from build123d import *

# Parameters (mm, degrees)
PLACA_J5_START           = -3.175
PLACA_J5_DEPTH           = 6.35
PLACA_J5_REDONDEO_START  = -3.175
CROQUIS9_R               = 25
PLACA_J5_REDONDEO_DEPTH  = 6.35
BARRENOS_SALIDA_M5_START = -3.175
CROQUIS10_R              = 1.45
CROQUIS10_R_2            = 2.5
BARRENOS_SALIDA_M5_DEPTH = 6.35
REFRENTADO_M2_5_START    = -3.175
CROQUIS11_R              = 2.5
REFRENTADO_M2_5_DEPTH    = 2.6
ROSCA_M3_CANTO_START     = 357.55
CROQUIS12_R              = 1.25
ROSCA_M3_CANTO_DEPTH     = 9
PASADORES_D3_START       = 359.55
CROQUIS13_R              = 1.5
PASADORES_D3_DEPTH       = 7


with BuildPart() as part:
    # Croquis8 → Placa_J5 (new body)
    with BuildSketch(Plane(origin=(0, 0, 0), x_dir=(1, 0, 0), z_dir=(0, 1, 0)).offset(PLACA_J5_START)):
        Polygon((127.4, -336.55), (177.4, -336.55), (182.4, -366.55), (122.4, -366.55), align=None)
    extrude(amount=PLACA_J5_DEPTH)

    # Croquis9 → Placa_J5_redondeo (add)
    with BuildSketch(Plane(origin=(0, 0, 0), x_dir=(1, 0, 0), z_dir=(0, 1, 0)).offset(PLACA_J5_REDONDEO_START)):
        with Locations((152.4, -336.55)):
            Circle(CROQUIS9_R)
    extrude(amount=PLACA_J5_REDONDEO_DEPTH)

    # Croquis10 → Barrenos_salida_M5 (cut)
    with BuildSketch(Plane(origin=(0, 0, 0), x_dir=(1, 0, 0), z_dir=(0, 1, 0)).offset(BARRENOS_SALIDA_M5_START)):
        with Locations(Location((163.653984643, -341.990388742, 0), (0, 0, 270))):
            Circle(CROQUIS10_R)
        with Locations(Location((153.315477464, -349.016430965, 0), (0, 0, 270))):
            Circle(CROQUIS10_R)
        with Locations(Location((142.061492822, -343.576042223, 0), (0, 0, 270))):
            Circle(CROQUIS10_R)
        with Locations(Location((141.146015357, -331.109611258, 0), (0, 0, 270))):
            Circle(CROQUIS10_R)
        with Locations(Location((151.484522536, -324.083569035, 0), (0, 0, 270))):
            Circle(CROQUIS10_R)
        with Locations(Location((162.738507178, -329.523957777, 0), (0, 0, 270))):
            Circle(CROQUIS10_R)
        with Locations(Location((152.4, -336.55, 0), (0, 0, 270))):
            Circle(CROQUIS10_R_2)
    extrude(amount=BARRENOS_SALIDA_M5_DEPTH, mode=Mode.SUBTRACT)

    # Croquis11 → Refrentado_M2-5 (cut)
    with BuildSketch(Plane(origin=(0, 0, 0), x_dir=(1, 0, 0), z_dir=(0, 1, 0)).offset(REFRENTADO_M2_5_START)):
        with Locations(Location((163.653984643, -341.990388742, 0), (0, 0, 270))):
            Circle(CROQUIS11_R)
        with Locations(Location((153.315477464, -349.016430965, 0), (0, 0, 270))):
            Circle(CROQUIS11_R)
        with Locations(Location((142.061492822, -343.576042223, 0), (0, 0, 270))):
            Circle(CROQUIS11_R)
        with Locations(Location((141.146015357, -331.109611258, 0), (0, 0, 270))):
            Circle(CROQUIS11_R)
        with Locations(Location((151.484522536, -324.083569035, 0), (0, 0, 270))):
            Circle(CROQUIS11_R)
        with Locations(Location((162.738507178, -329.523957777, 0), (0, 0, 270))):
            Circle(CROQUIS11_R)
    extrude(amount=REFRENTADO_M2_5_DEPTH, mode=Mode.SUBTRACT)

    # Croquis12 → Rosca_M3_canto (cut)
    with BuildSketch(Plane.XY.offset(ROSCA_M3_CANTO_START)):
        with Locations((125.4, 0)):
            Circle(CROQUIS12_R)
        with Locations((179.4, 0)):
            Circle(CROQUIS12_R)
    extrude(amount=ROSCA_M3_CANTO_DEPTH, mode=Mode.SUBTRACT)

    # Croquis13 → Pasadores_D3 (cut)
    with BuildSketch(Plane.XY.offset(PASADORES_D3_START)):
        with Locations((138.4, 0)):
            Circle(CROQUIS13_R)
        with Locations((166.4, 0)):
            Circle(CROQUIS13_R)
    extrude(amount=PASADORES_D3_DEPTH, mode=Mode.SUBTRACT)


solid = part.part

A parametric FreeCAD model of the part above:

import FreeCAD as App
import Part
import Sketcher
Q = App.Units.Quantity

doc = App.newDocument("Part")
body = doc.addObject("PartDesign::Body", "Body")

sketch1 = body.newObject("Sketcher::SketchObject", "Sketch")
sketch1.AttachmentSupport = (doc.getObject("XZ_Plane"), [""])
sketch1.MapMode = "FlatFace"
sketch1.AttachmentOffset = App.Placement(App.Vector(0, 0, 3.175), App.Rotation())
sketch1.addGeometry([
    Part.LineSegment(App.Vector(177.4, 336.55, 0), App.Vector(127.4, 336.55, 0)),
    Part.LineSegment(App.Vector(127.4, 336.55, 0), App.Vector(122.4, 366.55, 0)),
    Part.LineSegment(App.Vector(122.4, 366.55, 0), App.Vector(182.4, 366.55, 0)),
    Part.LineSegment(App.Vector(182.4, 366.55, 0), App.Vector(177.4, 336.55, 0)),
], False)
sketch1.addConstraint([
    Sketcher.Constraint("Coincident", 0, 2, 1, 1),
    Sketcher.Constraint("Coincident", 1, 2, 2, 1),
    Sketcher.Constraint("Coincident", 2, 2, 3, 1),
    Sketcher.Constraint("Coincident", 3, 2, 0, 1),
    Sketcher.Constraint("Horizontal", 0),
    Sketcher.Constraint("Horizontal", 2),
    Sketcher.Constraint("Equal", 1, 3),
    Sketcher.Constraint("DistanceX", 0, 2, 0, 1, Q("50 mm")),
    Sketcher.Constraint("DistanceX", 2, 1, 2, 2, Q("60 mm")),
    Sketcher.Constraint("DistanceY", 0, 2, 1, 2, Q("30 mm")),
    Sketcher.Constraint("DistanceX", -1, 1, 0, 2, Q("127.4 mm")),
    Sketcher.Constraint("DistanceY", -1, 1, 0, 2, Q("336.55 mm")),
])
pad1 = body.newObject("PartDesign::Pad", "Pad")
pad1.Profile = sketch1
pad1.Length = 6.35
pad1.Reversed = True

sketch2 = body.newObject("Sketcher::SketchObject", "Sketch001")
sketch2.AttachmentSupport = (doc.getObject("XZ_Plane"), [""])
sketch2.MapMode = "FlatFace"
sketch2.AttachmentOffset = App.Placement(App.Vector(0, 0, 3.175), App.Rotation())
sketch2.addGeometry(Part.Circle(App.Vector(152.4, 336.55, 0), App.Vector(0, 0, 1), 25), False)
sketch2.addConstraint([
    Sketcher.Constraint("Diameter", 0, Q("50 mm")),
    Sketcher.Constraint("DistanceX", -1, 1, 0, 3, Q("152.4 mm")),
    Sketcher.Constraint("DistanceY", -1, 1, 0, 3, Q("336.55 mm")),
])
pad2 = body.newObject("PartDesign::Pad", "Pad001")
pad2.Profile = sketch2
pad2.Length = 6.35
pad2.Reversed = True

sketch3 = body.newObject("Sketcher::SketchObject", "Sketch002")
sketch3.AttachmentSupport = (doc.getObject("XZ_Plane"), [""])
sketch3.MapMode = "FlatFace"
sketch3.AttachmentOffset = App.Placement(App.Vector(0, 0, 3.175), App.Rotation())
sketch3.addGeometry([
    Part.Circle(App.Vector(163.653985, 341.990389, 0), App.Vector(0, 0, 1), 1.45),
    Part.Circle(App.Vector(153.315477, 349.016431, 0), App.Vector(0, 0, 1), 1.45),
    Part.Circle(App.Vector(142.061493, 343.576042, 0), App.Vector(0, 0, 1), 1.45),
    Part.Circle(App.Vector(141.146015, 331.109611, 0), App.Vector(0, 0, 1), 1.45),
    Part.Circle(App.Vector(151.484523, 324.083569, 0), App.Vector(0, 0, 1), 1.45),
    Part.Circle(App.Vector(162.738507, 329.523958, 0), App.Vector(0, 0, 1), 1.45),
    Part.Circle(App.Vector(152.4, 336.55, 0), App.Vector(0, 0, 1), 2.5),
], False)
sketch3.addConstraint([
    Sketcher.Constraint("Equal", 0, 1),
    Sketcher.Constraint("Equal", 1, 2),
    Sketcher.Constraint("Equal", 2, 3),
    Sketcher.Constraint("Equal", 3, 4),
    Sketcher.Constraint("Equal", 4, 5),
    Sketcher.Constraint("Diameter", 6, Q("5 mm")),
    Sketcher.Constraint("Diameter", 0, Q("2.9 mm")),
    Sketcher.Constraint("DistanceX", -1, 1, 6, 3, Q("152.4 mm")),
    Sketcher.Constraint("DistanceY", -1, 1, 6, 3, Q("336.55 mm")),
    Sketcher.Constraint("DistanceY", -1, 1, 0, 3, Q("341.990389 mm")),
    Sketcher.Constraint("DistanceY", -1, 1, 1, 3, Q("349.016431 mm")),
    Sketcher.Constraint("DistanceY", -1, 1, 3, 3, Q("331.109611 mm")),
    Sketcher.Constraint("DistanceY", -1, 1, 4, 3, Q("324.083569 mm")),
    Sketcher.Constraint("DistanceY", 2, 3, 1, 3, Q("5.440389 mm")),
    Sketcher.Constraint("DistanceX", 2, 3, 0, 3, Q("21.592492 mm")),
    Sketcher.Constraint("DistanceX", 3, 3, 0, 3, Q("22.507969 mm")),
    Sketcher.Constraint("DistanceX", 2, 3, 4, 3, Q("9.42303 mm")),
    Sketcher.Constraint("DistanceY", 4, 3, 5, 3, Q("5.440389 mm")),
    Sketcher.Constraint("DistanceX", 1, 3, 5, 3, Q("9.42303 mm")),
    Sketcher.Constraint("DistanceX", 3, 3, 5, 3, Q("21.592492 mm")),
    Sketcher.Constraint("DistanceX", -1, 1, 0, 3, Q("163.653985 mm")),
])
pocket1 = body.newObject("PartDesign::Pocket", "Pocket")
pocket1.Profile = sketch3
pocket1.Length = 6.35

sketch4 = body.newObject("Sketcher::SketchObject", "Sketch003")
sketch4.AttachmentSupport = (doc.getObject("XZ_Plane"), [""])
sketch4.MapMode = "FlatFace"
sketch4.AttachmentOffset = App.Placement(App.Vector(0, 0, 3.175), App.Rotation())
sketch4.addGeometry([
    Part.Circle(App.Vector(163.653985, 341.990389, 0), App.Vector(0, 0, 1), 2.5),
    Part.Circle(App.Vector(153.315477, 349.016431, 0), App.Vector(0, 0, 1), 2.5),
    Part.Circle(App.Vector(142.061493, 343.576042, 0), App.Vector(0, 0, 1), 2.5),
    Part.Circle(App.Vector(141.146015, 331.109611, 0), App.Vector(0, 0, 1), 2.5),
    Part.Circle(App.Vector(151.484523, 324.083569, 0), App.Vector(0, 0, 1), 2.5),
    Part.Circle(App.Vector(162.738507, 329.523958, 0), App.Vector(0, 0, 1), 2.5),
], False)
sketch4.addConstraint([
    Sketcher.Constraint("Equal", 0, 1),
    Sketcher.Constraint("Equal", 1, 2),
    Sketcher.Constraint("Equal", 2, 3),
    Sketcher.Constraint("Equal", 3, 4),
    Sketcher.Constraint("Equal", 4, 5),
    Sketcher.Constraint("Diameter", 0, Q("5 mm")),
    Sketcher.Constraint("DistanceY", -1, 1, 0, 3, Q("341.990389 mm")),
    Sketcher.Constraint("DistanceY", -1, 1, 1, 3, Q("349.016431 mm")),
    Sketcher.Constraint("DistanceY", -1, 1, 3, 3, Q("331.109611 mm")),
    Sketcher.Constraint("DistanceY", -1, 1, 4, 3, Q("324.083569 mm")),
    Sketcher.Constraint("DistanceY", 2, 3, 1, 3, Q("5.440389 mm")),
    Sketcher.Constraint("DistanceX", 2, 3, 0, 3, Q("21.592492 mm")),
    Sketcher.Constraint("DistanceX", 3, 3, 0, 3, Q("22.507969 mm")),
    Sketcher.Constraint("DistanceX", 2, 3, 4, 3, Q("9.42303 mm")),
    Sketcher.Constraint("DistanceY", 4, 3, 5, 3, Q("5.440389 mm")),
    Sketcher.Constraint("DistanceX", 1, 3, 5, 3, Q("9.42303 mm")),
    Sketcher.Constraint("DistanceX", 3, 3, 5, 3, Q("21.592492 mm")),
    Sketcher.Constraint("DistanceX", -1, 1, 0, 3, Q("163.653985 mm")),
])
pocket2 = body.newObject("PartDesign::Pocket", "Pocket001")
pocket2.Profile = sketch4
pocket2.Length = 2.6

sketch5 = body.newObject("Sketcher::SketchObject", "Sketch004")
sketch5.AttachmentSupport = (doc.getObject("XY_Plane"), [""])
sketch5.MapMode = "FlatFace"
sketch5.AttachmentOffset = App.Placement(App.Vector(0, 0, 357.55), App.Rotation())
sketch5.addGeometry([
    Part.Circle(App.Vector(125.4, 0, 0), App.Vector(0, 0, 1), 1.25),
    Part.Circle(App.Vector(179.4, 0, 0), App.Vector(0, 0, 1), 1.25),
], False)
sketch5.addConstraint([
    Sketcher.Constraint("Equal", 0, 1),
    Sketcher.Constraint("PointOnObject", 0, 3, -1),
    Sketcher.Constraint("PointOnObject", 1, 3, -1),
    Sketcher.Constraint("Diameter", 0, Q("2.5 mm")),
    Sketcher.Constraint("DistanceX", 0, 3, 1, 3, Q("54 mm")),
    Sketcher.Constraint("DistanceX", -1, 1, 0, 3, Q("125.4 mm")),
])
pocket3 = body.newObject("PartDesign::Pocket", "Pocket002")
pocket3.Profile = sketch5
pocket3.Length = 9
pocket3.Reversed = True

sketch6 = body.newObject("Sketcher::SketchObject", "Sketch005")
sketch6.AttachmentSupport = (doc.getObject("XY_Plane"), [""])
sketch6.MapMode = "FlatFace"
sketch6.AttachmentOffset = App.Placement(App.Vector(0, 0, 359.55), App.Rotation())
sketch6.addGeometry([
    Part.Circle(App.Vector(138.4, 0, 0), App.Vector(0, 0, 1), 1.5),
    Part.Circle(App.Vector(166.4, 0, 0), App.Vector(0, 0, 1), 1.5),
], False)
sketch6.addConstraint([
    Sketcher.Constraint("Equal", 0, 1),
    Sketcher.Constraint("PointOnObject", 0, 3, -1),
    Sketcher.Constraint("PointOnObject", 1, 3, -1),
    Sketcher.Constraint("Diameter", 0, Q("3 mm")),
    Sketcher.Constraint("DistanceX", 0, 3, 1, 3, Q("28 mm")),
    Sketcher.Constraint("DistanceX", -1, 1, 0, 3, Q("138.4 mm")),
])
pocket4 = body.newObject("PartDesign::Pocket", "Pocket003")
pocket4.Profile = sketch6
pocket4.Length = 7
pocket4.Reversed = True

doc.recompute()
